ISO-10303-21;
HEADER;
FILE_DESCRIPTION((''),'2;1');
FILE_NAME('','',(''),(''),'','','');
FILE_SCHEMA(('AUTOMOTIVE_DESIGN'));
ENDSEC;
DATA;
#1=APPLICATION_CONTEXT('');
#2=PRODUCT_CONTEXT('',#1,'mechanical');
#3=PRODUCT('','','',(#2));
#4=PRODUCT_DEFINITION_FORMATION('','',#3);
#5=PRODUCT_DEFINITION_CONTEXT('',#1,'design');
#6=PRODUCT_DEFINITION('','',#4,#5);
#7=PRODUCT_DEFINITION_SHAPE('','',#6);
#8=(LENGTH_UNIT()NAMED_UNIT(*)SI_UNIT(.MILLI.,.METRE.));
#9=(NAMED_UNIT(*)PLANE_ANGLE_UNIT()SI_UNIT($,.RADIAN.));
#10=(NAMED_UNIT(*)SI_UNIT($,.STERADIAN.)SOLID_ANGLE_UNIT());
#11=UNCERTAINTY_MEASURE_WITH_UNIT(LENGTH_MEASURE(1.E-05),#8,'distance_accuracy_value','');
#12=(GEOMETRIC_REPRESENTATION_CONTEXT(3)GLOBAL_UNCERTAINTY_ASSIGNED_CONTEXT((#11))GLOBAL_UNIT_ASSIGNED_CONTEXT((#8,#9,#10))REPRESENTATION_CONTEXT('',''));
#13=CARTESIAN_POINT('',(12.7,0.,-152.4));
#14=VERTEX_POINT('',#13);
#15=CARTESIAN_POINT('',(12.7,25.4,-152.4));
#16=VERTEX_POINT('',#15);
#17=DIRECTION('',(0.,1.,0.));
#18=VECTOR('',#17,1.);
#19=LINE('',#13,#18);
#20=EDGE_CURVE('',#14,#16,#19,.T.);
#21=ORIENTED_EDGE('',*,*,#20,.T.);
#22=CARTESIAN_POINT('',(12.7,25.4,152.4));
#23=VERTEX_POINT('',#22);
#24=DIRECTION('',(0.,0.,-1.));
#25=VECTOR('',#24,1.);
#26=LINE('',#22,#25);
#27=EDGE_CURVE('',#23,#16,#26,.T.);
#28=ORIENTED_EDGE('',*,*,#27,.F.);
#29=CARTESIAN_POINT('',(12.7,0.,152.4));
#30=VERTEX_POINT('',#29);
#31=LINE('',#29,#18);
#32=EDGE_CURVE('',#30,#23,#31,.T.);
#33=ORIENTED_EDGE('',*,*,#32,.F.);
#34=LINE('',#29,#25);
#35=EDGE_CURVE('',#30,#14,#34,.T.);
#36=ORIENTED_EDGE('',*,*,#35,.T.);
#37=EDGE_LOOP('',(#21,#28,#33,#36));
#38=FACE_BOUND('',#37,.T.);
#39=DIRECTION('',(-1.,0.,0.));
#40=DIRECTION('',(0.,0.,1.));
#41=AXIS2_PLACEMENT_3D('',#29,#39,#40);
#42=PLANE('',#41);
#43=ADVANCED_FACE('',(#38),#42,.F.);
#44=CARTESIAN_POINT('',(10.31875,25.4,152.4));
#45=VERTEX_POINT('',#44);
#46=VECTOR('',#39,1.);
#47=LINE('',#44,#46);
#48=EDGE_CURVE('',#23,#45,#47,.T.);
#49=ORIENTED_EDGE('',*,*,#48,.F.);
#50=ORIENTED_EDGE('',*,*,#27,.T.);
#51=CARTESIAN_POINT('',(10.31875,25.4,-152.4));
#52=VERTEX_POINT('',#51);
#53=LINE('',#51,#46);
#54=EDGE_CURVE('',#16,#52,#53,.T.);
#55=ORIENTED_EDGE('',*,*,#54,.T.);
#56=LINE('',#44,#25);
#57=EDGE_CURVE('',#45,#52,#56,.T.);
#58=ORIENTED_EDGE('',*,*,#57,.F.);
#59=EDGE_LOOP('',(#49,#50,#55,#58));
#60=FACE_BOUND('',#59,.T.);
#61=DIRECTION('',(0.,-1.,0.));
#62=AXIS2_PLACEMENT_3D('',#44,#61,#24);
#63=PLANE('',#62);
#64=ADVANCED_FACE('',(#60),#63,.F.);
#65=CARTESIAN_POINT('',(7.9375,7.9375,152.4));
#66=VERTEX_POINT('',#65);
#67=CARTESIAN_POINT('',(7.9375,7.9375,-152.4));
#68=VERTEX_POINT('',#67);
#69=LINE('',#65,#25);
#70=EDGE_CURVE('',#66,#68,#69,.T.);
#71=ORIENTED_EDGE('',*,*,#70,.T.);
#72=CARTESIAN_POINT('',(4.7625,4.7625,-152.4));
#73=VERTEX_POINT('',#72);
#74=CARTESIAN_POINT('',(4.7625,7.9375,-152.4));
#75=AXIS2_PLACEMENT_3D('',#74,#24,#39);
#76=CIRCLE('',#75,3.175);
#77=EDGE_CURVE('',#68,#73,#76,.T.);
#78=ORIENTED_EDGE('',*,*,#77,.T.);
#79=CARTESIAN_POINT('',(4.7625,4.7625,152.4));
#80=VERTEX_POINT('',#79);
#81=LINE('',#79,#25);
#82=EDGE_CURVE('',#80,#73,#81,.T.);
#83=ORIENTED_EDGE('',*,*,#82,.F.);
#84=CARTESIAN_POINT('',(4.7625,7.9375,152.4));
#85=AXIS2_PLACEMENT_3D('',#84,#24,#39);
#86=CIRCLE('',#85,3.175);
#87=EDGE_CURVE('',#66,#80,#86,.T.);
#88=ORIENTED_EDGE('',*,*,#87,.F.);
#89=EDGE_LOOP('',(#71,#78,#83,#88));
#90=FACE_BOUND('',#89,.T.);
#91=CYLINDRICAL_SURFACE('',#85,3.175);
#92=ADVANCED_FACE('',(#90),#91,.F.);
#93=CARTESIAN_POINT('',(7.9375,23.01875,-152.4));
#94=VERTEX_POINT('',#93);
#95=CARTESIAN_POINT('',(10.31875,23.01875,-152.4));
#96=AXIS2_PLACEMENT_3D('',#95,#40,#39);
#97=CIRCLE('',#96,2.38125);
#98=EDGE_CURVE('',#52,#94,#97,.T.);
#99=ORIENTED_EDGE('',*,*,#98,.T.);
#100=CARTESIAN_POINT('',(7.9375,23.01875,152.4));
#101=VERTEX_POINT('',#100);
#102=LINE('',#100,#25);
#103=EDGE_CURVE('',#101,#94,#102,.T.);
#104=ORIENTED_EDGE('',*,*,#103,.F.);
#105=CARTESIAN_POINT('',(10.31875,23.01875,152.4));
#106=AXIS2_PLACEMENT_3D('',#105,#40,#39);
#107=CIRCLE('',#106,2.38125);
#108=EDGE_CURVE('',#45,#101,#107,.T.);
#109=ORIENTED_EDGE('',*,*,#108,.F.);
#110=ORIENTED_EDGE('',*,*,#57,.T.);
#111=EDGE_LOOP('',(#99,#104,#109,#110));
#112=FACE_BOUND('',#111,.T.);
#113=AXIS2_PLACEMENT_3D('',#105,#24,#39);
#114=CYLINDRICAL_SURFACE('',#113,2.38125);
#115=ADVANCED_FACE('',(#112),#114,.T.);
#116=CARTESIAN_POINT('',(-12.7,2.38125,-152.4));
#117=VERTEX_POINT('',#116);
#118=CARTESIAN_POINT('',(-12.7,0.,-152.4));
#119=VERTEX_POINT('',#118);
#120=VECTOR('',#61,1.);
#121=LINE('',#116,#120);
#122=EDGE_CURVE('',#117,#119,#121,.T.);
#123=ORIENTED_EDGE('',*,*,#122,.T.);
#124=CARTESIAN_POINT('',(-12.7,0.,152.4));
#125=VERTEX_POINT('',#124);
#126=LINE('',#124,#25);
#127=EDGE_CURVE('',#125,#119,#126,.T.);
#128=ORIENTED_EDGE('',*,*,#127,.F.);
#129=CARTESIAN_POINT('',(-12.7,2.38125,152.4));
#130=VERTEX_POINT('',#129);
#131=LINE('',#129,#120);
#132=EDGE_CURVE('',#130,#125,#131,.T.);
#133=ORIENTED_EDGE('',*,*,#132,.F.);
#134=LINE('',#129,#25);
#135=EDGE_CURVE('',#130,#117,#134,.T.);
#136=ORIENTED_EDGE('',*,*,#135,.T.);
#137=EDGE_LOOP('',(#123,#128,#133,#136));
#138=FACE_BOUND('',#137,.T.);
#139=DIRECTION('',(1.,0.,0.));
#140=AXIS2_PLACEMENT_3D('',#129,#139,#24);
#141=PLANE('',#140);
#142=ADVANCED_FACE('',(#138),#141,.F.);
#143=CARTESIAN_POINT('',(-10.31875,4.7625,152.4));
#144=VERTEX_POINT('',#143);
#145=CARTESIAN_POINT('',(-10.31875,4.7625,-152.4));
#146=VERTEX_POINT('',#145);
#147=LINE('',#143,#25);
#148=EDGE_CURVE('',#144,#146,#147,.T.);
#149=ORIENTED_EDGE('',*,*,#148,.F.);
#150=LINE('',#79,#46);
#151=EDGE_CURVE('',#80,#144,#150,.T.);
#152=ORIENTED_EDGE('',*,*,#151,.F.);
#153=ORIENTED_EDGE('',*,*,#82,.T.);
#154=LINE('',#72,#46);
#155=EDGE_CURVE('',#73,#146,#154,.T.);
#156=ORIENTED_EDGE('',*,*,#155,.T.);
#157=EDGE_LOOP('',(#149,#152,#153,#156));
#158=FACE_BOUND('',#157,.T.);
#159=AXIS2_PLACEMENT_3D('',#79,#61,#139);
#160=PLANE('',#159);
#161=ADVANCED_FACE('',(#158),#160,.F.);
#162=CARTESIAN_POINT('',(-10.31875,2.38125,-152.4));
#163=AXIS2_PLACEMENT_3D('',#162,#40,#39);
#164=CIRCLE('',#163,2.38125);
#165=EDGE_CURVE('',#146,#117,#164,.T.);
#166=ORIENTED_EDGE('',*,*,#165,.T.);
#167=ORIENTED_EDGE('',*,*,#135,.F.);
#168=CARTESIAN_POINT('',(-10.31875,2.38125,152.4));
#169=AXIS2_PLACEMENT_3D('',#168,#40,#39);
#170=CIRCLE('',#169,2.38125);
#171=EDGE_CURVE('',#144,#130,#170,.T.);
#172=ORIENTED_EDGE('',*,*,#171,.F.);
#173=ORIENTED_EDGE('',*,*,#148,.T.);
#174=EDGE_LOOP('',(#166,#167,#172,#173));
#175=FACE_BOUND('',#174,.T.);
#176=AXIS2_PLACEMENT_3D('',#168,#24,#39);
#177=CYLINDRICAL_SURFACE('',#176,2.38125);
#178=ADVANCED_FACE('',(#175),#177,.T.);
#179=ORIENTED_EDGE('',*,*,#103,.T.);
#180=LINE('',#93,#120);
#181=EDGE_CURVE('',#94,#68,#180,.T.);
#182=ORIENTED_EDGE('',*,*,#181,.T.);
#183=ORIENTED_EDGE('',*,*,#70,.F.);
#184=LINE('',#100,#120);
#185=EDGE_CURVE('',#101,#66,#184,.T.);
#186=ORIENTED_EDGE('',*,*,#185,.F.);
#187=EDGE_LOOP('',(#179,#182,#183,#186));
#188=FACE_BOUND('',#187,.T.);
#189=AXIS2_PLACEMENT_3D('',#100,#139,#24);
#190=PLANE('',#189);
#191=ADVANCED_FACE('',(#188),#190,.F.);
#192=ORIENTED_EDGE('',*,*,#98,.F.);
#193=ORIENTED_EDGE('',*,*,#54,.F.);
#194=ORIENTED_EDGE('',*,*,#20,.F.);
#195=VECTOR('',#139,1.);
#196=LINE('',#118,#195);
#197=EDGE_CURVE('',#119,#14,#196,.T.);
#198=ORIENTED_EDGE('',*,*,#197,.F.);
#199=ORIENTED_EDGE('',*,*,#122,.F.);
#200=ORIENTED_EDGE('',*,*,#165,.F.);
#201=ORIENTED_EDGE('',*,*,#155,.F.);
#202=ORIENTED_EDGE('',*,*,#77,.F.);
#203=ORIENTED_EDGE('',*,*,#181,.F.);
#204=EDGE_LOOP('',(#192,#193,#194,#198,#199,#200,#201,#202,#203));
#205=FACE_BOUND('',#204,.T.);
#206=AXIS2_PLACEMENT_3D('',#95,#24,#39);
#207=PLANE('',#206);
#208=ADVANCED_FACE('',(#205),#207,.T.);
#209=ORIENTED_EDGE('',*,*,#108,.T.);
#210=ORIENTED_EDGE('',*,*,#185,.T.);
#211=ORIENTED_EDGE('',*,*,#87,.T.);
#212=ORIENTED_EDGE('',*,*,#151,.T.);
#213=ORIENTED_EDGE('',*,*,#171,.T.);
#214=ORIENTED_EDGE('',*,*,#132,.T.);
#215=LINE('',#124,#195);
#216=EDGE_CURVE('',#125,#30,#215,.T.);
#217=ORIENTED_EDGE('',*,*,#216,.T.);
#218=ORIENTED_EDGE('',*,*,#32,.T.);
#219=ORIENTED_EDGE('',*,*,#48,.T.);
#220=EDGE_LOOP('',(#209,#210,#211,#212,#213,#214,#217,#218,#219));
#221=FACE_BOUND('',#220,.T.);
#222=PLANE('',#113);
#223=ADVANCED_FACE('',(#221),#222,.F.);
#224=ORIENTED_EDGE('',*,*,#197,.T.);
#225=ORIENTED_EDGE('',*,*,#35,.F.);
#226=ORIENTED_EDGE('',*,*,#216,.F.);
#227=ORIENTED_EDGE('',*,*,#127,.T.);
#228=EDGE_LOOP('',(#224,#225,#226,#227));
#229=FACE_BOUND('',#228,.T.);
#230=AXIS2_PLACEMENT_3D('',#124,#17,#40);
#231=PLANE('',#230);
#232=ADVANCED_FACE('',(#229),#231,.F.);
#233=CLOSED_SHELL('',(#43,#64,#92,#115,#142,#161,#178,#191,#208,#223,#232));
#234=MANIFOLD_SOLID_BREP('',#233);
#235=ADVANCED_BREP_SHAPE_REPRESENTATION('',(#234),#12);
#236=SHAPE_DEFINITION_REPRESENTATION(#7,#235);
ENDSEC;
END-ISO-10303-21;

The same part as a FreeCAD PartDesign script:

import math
import FreeCAD as App
import Part
import Sketcher
Q = App.Units.Quantity

doc = App.newDocument("Part")
body = doc.addObject("PartDesign::Body", "Body")

# Sketch on XY plane
sketch1 = doc.addObject("Sketcher::SketchObject", "Sketch")
body.addObject(sketch1)
sketch1.AttachmentSupport = (doc.XY_Plane, [""])
sketch1.MapMode = "FlatFace"
sketch1.addGeometry([
    Part.LineSegment(App.Vector(-12.7, 0, 0), App.Vector(12.7, 0, 0)),  # 0
    Part.LineSegment(App.Vector(12.7, 0, 0), App.Vector(12.7, 25.4, 0)),  # 1
    Part.LineSegment(App.Vector(12.7, 25.4, 0), App.Vector(10.3, 25.4, 0)),  # 2
    Part.ArcOfCircle(Part.Circle(App.Vector(10.3, 23, 0), App.Vector(0, 0, 1), 2.4), math.radians(90), math.radians(180)),  # 3
    Part.LineSegment(App.Vector(7.9, 23, 0), App.Vector(7.9, 7.9, 0)),  # 4
    Part.ArcOfCircle(Part.Circle(App.Vector(4.8, 7.9, 0), App.Vector(0, 0, 1), 3.2), math.radians(-90), math.radians(0)),  # 5
    Part.LineSegment(App.Vector(4.8, 4.8, 0), App.Vector(-10.3, 4.8, 0)),  # 6
    Part.ArcOfCircle(Part.Circle(App.Vector(-10.3, 2.4, 0), App.Vector(0, 0, 1), 2.4), math.radians(90), math.radians(180)),  # 7
    Part.LineSegment(App.Vector(-12.7, 2.4, 0), App.Vector(-12.7, 0, 0)),  # 8
], False)
sketch1.addConstraint([
    Sketcher.Constraint("Coincident", 0, 2, 1, 1),
    Sketcher.Constraint("Coincident", 1, 2, 2, 1),
    Sketcher.Constraint("Tangent", 2, 2, 3, 1),
    Sketcher.Constraint("Tangent", 3, 2, 4, 1),
    Sketcher.Constraint("Tangent", 4, 2, 5, 2),
    Sketcher.Constraint("Tangent", 5, 1, 6, 1),
    Sketcher.Constraint("Tangent", 6, 2, 7, 1),
    Sketcher.Constraint("Tangent", 7, 2, 8, 1),
    Sketcher.Constraint("Coincident", 8, 2, 0, 1),
    Sketcher.Constraint("Horizontal", 0),
    Sketcher.Constraint("Vertical", 1),
    Sketcher.Constraint("Horizontal", 2),
    Sketcher.Constraint("Vertical", 4),
    Sketcher.Constraint("Horizontal", 6),
    Sketcher.Constraint("Vertical", 8),
    Sketcher.Constraint("Equal", 3, 7),
    Sketcher.Constraint("Symmetric", 0, 2, 8, 2, -1, 1),
    Sketcher.Constraint("Equal", 0, 1),
    Sketcher.Constraint("Equal", 6, 4),
    Sketcher.Constraint("DistanceX", 0, 1, 0, 2, Q("1 in")),
    Sketcher.Constraint("Radius", 3, Q("0.09375 in")),
    Sketcher.Constraint("Radius", 5, Q("0.125 in")),
    Sketcher.Constraint("DistanceX", 2, 2, 2, 1, Q("0.09375 in")),
])
pad1 = doc.addObject("PartDesign::Pad", "Pad")
body.addObject(pad1)
pad1.Profile = sketch1
pad1.Length = Q("12 in")
pad1.Midplane = True

doc.recompute()
